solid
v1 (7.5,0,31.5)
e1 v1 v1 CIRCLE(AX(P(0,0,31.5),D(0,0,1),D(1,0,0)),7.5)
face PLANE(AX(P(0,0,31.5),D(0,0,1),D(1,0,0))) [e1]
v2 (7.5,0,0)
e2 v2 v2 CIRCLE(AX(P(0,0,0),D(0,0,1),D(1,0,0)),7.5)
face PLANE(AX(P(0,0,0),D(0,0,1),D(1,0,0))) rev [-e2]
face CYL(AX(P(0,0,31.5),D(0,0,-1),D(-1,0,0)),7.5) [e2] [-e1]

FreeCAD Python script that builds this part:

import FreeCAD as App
import Part
import Sketcher

V = App.Vector

doc = App.newDocument("Part")
body = doc.addObject("PartDesign::Body", "Body")

# Sketch on XY plane
sketch1 = body.newObject("Sketcher::SketchObject", "Sketch")
sketch1.AttachmentSupport = (doc.getObject("XY_Plane"), [""])
sketch1.MapMode = "FlatFace"
sketch1.addGeometry(Part.Circle(V(0, 0, 0), V(0, 0, 1), 8), False)
sketch1.addConstraint([
    Sketcher.Constraint("Coincident", 0, 3, -1, 1),
    Sketcher.Constraint("Diameter", 0, 15.0),
])
pad1 = body.newObject("PartDesign::Pad", "Pad")
pad1.Profile = sketch1
pad1.Length = 31.5

doc.recompute()
